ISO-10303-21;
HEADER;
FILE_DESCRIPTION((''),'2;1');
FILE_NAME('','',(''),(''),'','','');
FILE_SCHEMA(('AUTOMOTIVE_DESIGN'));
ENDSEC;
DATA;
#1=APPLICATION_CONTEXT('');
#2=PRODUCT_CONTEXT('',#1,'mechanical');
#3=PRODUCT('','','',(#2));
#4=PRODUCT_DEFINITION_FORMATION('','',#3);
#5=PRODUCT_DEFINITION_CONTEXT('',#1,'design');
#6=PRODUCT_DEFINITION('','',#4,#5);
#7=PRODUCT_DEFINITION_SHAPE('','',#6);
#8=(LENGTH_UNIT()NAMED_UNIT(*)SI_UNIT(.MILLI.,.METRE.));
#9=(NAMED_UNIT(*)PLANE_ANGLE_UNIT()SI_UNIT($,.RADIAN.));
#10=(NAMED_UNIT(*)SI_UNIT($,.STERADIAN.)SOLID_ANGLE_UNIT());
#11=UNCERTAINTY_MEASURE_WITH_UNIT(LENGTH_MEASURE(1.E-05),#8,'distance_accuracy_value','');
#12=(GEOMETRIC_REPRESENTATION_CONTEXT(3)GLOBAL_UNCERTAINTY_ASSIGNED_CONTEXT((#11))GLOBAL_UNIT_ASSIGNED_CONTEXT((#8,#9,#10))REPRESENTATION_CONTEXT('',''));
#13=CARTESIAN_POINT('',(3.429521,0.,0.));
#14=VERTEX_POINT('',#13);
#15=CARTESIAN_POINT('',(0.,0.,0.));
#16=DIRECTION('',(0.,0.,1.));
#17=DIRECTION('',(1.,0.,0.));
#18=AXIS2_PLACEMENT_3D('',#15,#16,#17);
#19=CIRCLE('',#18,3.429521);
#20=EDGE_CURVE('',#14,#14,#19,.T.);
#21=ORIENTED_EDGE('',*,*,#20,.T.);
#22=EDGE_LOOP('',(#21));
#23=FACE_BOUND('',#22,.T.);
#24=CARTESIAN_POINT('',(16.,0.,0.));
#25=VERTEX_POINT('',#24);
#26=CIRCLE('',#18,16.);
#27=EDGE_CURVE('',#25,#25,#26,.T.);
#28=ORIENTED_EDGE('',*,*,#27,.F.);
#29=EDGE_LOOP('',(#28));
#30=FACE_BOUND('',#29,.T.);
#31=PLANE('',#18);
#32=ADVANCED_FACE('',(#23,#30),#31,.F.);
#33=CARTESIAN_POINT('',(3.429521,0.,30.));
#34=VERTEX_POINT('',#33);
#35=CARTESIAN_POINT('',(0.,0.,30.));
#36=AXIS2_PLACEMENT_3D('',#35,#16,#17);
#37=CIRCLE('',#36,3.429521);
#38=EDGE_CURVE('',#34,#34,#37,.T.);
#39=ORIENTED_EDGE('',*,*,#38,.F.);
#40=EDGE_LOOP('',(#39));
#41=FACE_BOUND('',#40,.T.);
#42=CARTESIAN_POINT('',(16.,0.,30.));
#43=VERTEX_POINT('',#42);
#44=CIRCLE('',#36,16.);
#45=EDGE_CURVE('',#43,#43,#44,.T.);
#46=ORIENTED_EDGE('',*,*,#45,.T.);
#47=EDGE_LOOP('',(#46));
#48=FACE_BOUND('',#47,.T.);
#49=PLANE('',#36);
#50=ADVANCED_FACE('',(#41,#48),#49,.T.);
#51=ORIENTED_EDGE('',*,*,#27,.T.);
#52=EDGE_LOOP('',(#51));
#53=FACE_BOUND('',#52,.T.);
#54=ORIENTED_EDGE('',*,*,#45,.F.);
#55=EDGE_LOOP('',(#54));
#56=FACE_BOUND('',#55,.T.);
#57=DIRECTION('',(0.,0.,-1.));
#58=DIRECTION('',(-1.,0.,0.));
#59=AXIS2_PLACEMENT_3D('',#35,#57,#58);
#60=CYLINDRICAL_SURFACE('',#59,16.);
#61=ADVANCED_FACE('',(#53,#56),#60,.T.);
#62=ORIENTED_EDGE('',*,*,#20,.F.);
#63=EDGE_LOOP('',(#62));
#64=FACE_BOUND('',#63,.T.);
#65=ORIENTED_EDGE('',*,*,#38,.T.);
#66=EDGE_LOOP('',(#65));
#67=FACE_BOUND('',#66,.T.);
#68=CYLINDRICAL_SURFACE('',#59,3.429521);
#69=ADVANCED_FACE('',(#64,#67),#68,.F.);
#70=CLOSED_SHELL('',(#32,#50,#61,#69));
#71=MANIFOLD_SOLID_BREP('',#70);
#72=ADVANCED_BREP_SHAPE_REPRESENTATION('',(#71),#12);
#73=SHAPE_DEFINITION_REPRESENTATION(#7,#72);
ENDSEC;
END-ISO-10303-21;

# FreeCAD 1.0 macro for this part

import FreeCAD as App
import Part
import Sketcher

V = App.Vector
Q = App.Units.Quantity

doc = App.newDocument("Part")
body = doc.addObject("PartDesign::Body", "Body")

# Sketch on XY plane
sketch1 = body.newObject("Sketcher::SketchObject", "Sketch")
sketch1.AttachmentSupport = (doc.getObject("XY_Plane"), [""])
sketch1.MapMode = "FlatFace"
sketch1.addGeometry([
    Part.Circle(V(0, 0, 0), V(0, 0, 1), 16),
    Part.Circle(V(0, 0, 0), V(0, 0, 1), 3.4),
], False)
sketch1.addConstraint([
    Sketcher.Constraint("Coincident", 0, 3, -1, 1),
    Sketcher.Constraint("Coincident", 1, 3, -1, 1),
    Sketcher.Constraint("Diameter", 0, Q("32 mm")),
    Sketcher.Constraint("Diameter", 1, Q("6.859041 mm")),
])
pad1 = body.newObject("PartDesign::Pad", "Pad")
pad1.Profile = sketch1
pad1.Length = 30

doc.recompute()
